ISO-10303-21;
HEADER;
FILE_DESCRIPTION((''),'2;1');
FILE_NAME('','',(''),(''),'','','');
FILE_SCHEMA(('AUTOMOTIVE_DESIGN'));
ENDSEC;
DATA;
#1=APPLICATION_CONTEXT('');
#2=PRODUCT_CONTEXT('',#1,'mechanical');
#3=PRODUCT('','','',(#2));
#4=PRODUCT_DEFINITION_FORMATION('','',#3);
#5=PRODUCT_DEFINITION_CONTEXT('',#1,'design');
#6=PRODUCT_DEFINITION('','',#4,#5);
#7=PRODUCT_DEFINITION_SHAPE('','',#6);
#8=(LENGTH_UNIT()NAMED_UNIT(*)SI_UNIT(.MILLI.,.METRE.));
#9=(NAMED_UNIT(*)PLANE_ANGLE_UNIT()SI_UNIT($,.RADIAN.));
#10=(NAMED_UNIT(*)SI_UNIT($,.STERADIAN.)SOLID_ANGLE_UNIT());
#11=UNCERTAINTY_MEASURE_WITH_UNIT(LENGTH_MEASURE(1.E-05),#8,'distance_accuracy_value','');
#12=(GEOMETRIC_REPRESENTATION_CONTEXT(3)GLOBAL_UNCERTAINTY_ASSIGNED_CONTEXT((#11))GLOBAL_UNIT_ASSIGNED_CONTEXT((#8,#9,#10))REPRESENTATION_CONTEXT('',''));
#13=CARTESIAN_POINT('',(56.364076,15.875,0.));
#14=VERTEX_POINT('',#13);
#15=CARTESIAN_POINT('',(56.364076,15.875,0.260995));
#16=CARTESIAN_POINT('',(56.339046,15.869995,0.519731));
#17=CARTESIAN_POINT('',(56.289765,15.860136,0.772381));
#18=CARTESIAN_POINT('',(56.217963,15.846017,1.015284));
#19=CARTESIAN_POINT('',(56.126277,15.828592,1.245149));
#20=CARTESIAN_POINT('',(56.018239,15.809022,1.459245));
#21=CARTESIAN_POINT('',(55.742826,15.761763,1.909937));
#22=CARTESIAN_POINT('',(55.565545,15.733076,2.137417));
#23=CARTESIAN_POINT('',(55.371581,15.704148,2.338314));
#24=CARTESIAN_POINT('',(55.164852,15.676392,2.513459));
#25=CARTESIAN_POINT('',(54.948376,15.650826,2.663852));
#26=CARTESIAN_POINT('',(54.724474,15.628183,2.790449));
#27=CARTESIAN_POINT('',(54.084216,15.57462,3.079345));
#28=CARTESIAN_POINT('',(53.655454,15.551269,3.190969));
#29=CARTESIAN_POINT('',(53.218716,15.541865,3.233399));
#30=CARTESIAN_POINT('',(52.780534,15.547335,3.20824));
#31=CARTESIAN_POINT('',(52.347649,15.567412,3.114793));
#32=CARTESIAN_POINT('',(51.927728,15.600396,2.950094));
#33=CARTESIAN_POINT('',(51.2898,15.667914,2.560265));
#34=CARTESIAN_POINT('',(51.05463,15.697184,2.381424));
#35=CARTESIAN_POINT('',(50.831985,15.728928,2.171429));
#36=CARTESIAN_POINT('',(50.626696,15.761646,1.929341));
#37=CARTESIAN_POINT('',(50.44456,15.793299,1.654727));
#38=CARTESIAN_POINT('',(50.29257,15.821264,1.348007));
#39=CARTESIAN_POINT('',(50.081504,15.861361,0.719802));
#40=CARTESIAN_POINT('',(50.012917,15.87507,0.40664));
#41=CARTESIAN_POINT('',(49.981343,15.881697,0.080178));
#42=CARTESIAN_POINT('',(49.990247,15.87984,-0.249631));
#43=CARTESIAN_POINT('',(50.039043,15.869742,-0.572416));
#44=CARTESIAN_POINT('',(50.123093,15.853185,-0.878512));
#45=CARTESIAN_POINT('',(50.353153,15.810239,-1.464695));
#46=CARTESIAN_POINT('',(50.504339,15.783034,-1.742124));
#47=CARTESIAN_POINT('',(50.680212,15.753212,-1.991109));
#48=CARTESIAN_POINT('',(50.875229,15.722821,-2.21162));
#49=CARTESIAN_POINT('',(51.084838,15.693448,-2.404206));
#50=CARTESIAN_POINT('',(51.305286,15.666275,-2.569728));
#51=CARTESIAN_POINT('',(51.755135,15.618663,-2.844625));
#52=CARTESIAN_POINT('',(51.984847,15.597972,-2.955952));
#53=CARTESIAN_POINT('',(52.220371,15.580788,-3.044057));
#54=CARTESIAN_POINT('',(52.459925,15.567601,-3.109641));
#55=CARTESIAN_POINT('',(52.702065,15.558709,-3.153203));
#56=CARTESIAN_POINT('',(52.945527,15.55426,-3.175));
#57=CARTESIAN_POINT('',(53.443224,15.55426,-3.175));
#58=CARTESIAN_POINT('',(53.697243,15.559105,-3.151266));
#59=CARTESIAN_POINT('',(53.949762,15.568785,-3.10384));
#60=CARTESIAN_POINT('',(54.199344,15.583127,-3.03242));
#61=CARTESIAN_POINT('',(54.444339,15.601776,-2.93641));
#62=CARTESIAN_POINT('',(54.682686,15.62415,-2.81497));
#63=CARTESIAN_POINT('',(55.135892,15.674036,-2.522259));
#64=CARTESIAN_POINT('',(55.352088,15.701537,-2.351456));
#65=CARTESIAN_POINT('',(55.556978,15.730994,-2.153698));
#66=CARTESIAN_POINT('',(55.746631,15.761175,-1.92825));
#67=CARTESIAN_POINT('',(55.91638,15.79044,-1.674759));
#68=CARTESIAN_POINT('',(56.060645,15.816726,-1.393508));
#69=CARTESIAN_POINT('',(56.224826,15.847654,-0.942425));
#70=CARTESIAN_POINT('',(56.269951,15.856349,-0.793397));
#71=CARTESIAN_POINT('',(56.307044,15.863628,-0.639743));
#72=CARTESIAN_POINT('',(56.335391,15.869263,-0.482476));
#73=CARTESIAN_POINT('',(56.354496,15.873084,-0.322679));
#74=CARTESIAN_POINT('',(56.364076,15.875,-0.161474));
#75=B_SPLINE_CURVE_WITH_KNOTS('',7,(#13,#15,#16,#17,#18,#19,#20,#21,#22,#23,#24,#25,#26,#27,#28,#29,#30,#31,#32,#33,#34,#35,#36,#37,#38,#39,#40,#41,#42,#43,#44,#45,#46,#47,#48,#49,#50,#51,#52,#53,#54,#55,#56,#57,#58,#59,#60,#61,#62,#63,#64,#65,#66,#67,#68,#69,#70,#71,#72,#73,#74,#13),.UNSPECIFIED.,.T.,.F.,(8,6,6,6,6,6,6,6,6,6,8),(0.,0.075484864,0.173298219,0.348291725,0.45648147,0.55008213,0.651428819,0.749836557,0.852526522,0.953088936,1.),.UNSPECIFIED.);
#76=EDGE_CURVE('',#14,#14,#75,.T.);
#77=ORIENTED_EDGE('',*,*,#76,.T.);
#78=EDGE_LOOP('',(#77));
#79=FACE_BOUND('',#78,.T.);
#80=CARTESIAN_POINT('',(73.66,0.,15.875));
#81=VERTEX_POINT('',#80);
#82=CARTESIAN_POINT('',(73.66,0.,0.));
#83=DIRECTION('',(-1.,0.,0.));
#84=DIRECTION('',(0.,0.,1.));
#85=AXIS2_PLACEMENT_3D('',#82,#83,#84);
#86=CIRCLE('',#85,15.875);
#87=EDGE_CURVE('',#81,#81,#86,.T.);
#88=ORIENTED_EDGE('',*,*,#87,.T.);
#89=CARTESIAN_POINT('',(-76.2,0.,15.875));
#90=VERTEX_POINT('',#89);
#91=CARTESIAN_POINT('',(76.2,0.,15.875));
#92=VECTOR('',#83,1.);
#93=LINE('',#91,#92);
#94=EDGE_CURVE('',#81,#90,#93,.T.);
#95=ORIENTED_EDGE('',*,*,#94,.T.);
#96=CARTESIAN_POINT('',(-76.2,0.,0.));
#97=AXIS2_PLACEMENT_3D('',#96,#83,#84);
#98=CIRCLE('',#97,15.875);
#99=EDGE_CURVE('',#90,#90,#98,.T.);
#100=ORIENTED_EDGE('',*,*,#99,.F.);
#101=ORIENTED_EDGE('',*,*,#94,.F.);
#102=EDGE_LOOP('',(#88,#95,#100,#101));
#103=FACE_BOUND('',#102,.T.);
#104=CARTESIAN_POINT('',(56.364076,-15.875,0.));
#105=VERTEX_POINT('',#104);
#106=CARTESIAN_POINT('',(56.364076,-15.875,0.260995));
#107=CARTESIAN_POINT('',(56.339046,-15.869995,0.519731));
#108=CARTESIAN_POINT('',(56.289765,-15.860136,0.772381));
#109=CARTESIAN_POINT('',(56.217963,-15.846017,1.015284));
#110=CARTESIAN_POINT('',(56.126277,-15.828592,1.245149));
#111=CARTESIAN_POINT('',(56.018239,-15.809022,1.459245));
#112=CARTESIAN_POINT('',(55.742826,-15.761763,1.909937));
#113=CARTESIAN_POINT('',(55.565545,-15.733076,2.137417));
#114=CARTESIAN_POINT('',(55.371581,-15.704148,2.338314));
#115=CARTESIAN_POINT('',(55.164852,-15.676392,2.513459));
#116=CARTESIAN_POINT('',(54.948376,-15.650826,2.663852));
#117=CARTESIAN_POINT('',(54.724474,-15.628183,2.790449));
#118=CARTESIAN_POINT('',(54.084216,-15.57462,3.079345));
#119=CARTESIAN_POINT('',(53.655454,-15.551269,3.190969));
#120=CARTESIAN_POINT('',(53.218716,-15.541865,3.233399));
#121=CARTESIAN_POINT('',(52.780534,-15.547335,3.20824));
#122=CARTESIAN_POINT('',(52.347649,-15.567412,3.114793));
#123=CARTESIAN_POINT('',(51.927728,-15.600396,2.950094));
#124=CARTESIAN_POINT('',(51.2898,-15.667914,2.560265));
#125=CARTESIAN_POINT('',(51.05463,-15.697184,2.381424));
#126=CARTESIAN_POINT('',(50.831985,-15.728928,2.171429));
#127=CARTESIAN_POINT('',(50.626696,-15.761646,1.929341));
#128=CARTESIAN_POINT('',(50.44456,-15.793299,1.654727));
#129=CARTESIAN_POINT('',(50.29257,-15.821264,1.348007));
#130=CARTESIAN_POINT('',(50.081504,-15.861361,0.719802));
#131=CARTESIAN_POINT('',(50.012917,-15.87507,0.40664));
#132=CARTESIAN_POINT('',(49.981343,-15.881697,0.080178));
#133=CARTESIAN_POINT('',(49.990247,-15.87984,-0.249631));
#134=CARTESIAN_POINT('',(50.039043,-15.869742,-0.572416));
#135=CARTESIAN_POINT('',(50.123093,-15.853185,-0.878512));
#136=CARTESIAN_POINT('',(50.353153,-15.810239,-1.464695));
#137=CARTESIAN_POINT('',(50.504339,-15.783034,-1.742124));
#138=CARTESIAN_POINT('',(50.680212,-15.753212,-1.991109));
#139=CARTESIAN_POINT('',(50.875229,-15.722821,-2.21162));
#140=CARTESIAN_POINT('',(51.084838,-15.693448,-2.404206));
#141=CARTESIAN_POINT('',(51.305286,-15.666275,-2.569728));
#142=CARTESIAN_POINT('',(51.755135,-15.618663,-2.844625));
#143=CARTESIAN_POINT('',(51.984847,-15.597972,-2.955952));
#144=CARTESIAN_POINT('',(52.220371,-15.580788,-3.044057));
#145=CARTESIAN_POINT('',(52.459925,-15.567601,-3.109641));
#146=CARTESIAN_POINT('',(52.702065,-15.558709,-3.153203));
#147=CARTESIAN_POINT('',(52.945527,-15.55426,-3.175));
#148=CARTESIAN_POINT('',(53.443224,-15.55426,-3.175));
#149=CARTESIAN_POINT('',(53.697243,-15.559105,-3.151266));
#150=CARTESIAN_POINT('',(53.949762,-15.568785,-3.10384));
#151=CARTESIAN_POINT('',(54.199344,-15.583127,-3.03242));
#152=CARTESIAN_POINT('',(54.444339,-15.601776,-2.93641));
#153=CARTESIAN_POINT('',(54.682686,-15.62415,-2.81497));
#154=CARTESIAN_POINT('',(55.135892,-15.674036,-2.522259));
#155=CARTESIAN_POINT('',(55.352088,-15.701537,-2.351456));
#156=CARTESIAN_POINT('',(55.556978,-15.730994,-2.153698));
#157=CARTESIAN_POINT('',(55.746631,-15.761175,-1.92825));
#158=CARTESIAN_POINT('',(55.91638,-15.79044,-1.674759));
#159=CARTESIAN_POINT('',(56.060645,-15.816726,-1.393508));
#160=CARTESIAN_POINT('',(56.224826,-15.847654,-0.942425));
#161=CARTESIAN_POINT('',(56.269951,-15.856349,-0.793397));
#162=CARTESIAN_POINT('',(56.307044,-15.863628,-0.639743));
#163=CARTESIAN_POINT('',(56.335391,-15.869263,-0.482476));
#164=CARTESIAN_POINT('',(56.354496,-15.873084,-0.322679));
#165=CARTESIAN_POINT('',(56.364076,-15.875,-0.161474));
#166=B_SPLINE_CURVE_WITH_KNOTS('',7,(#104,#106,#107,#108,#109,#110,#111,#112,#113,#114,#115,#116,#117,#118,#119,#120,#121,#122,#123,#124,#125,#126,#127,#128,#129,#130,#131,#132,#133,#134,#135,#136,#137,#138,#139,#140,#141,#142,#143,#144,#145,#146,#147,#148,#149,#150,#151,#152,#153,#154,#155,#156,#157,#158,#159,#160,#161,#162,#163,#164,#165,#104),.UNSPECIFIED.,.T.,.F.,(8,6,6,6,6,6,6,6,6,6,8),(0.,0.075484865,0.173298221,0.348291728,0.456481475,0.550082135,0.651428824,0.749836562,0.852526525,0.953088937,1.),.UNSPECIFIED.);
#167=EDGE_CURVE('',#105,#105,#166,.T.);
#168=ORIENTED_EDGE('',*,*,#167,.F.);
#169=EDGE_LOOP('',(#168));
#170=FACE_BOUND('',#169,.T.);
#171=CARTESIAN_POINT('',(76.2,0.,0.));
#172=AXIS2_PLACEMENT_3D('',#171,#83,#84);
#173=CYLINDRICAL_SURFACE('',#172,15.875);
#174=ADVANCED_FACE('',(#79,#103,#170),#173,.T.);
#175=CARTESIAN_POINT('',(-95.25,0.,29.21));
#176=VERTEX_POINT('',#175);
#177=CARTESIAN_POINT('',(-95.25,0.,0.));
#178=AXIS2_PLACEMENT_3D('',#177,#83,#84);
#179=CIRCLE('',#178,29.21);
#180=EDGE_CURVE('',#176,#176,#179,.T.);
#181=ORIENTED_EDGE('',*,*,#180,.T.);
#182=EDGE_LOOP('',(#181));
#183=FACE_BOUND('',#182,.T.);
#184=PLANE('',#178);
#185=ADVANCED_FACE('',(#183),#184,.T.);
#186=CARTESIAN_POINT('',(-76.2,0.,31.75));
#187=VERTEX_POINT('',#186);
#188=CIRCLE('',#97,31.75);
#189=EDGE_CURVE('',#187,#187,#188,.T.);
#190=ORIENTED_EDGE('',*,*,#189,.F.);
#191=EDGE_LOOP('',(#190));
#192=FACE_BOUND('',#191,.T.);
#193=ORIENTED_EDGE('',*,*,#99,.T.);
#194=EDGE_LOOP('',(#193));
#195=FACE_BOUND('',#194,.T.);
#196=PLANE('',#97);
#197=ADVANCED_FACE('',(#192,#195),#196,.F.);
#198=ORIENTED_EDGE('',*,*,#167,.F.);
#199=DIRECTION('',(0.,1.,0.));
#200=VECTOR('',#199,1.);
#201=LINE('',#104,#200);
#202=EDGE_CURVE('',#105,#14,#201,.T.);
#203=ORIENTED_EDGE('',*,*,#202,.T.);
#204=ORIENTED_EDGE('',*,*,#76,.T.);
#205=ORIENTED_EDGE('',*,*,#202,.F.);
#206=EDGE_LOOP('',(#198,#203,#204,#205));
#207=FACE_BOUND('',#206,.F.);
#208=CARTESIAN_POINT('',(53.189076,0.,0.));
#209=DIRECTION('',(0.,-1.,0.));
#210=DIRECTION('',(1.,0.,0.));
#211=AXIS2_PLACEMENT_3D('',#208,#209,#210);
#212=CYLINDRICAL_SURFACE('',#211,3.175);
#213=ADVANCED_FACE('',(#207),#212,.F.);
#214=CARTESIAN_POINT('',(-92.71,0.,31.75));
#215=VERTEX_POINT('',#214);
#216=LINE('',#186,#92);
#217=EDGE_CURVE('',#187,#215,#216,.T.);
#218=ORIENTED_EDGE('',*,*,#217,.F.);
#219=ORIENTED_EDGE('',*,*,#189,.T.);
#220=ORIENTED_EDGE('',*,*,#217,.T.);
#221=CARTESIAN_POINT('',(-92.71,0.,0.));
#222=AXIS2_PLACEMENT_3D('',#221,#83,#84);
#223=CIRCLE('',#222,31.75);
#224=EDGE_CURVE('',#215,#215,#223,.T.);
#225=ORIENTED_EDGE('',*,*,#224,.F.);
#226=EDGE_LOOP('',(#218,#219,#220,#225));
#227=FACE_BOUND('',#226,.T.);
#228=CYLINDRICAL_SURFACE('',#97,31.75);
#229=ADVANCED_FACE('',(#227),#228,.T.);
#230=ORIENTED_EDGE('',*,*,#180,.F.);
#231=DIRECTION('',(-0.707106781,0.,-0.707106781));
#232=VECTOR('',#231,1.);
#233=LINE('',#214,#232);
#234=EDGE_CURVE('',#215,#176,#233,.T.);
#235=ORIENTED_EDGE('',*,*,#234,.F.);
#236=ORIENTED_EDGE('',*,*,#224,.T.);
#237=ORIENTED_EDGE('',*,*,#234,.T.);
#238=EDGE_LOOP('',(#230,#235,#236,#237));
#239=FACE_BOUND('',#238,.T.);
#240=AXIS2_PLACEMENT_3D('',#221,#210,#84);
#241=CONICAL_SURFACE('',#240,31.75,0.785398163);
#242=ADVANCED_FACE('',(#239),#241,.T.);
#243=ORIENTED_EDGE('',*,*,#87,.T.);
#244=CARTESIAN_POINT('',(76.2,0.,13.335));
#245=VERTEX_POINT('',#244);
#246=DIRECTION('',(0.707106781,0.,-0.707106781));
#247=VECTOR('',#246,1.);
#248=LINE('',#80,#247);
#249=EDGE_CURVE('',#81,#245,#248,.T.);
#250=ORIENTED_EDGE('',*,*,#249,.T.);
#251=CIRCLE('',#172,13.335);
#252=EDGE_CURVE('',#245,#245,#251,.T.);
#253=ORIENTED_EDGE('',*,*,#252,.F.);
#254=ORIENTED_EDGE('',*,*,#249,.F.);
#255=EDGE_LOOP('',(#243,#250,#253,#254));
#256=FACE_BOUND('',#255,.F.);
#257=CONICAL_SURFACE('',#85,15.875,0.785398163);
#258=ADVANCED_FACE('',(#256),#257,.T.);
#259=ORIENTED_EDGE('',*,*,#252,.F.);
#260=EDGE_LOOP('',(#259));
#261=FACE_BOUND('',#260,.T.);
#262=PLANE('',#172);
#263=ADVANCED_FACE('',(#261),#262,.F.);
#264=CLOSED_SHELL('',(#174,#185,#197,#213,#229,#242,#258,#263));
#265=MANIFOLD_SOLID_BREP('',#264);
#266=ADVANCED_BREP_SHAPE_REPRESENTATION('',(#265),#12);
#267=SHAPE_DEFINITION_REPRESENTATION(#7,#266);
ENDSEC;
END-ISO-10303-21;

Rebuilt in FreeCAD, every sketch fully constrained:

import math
import FreeCAD as App
import Part
import Sketcher
from FreeCAD import Vector
Q = App.Units.Quantity


def edges_at(feature, points):
    """Names of the edges that pass closest to the given points."""
    edges = feature.Shape.Edges
    near = lambda p: min(range(len(edges)), key=lambda i: edges[i].distToShape(Part.Vertex(*p))[0])
    return sorted({f"Edge{near(p) + 1}" for p in points})

doc = App.newDocument("Part")
body = doc.addObject("PartDesign::Body", "Body")

sketch1 = body.newObject("Sketcher::SketchObject", "Sketch")
sketch1.AttachmentSupport = (doc.getObject("XZ_Plane"), [""])
sketch1.MapMode = "FlatFace"
sketch1.addGeometry([
    Part.ArcOfCircle(Part.Circle(Vector(53.2, 0, 0), Vector(0, 0, 1), 3.2), math.radians(0), math.radians(180)),
    Part.LineSegment(Vector(56.4, 0, 0), Vector(76.2, 0, 0)),
    Part.LineSegment(Vector(76.2, 0, 0), Vector(76.2, 15.9, 0)),
    Part.LineSegment(Vector(76.2, 15.9, 0), Vector(-76.2, 15.9, 0)),
    Part.LineSegment(Vector(-76.2, 15.9, 0), Vector(-76.2, 31.8, 0)),
    Part.LineSegment(Vector(-76.2, 31.8, 0), Vector(-95.2, 31.8, 0)),
    Part.LineSegment(Vector(-95.2, 31.8, 0), Vector(-95.2, 0, 0)),
    Part.LineSegment(Vector(-95.2, 0, 0), Vector(50, 0, 0)),
], False)
sketch1.addConstraint([
    Sketcher.Constraint("Coincident", 0, 1, 1, 1),
    Sketcher.Constraint("Coincident", 1, 2, 2, 1),
    Sketcher.Constraint("Coincident", 2, 2, 3, 1),
    Sketcher.Constraint("Coincident", 3, 2, 4, 1),
    Sketcher.Constraint("Coincident", 4, 2, 5, 1),
    Sketcher.Constraint("Coincident", 5, 2, 6, 1),
    Sketcher.Constraint("Coincident", 6, 2, 7, 1),
    Sketcher.Constraint("Coincident", 7, 2, 0, 2),
    Sketcher.Constraint("Horizontal", 1),
    Sketcher.Constraint("Vertical", 2),
    Sketcher.Constraint("Horizontal", 3),
    Sketcher.Constraint("Vertical", 4),
    Sketcher.Constraint("Horizontal", 5),
    Sketcher.Constraint("Vertical", 6),
    Sketcher.Constraint("Horizontal", 7),
    Sketcher.Constraint("PointOnObject", 0, 3, -1),
    Sketcher.Constraint("PointOnObject", 0, 1, -1),
    Sketcher.Constraint("PointOnObject", 6, 2, -1),
    Sketcher.Constraint("Equal", 2, 4),
    Sketcher.Constraint("DistanceX", 3, 2, 3, 1, Q("6 in")),
    Sketcher.Constraint("DistanceX", -1, 1, 1, 2, Q("3 in")),
    Sketcher.Constraint("Radius", 0, Q("0.125 in")),
    Sketcher.Constraint("DistanceX", 5, 2, 5, 1, Q("0.75 in")),
    Sketcher.Constraint("DistanceY", 6, 2, 6, 1, Q("1.25 in")),
    Sketcher.Constraint("DistanceX", 1, 1, 1, 2, Q("19.835924 mm")),
])
revolution = body.newObject("PartDesign::Revolution", "Revolution")
revolution.Profile = sketch1
revolution.ReferenceAxis = (sketch1, ["H_Axis"])
revolution.Angle = 360

sketch2 = body.newObject("Sketcher::SketchObject", "Sketch001")
sketch2.AttachmentSupport = (doc.getObject("XZ_Plane"), [""])
sketch2.MapMode = "FlatFace"
sketch2.addGeometry(Part.Circle(Vector(53.2, 0, 0), Vector(0, 0, 1), 3.2), False)
sketch2.addConstraint([
    Sketcher.Constraint("PointOnObject", 0, 3, -1),
    Sketcher.Constraint("Diameter", 0, Q("0.25 in")),
    Sketcher.Constraint("DistanceX", -1, 1, 0, 3, Q("53.189076 mm")),
])
pocket1 = body.newObject("PartDesign::Pocket", "Pocket")
pocket1.Profile = sketch2
pocket1.Length = Q("2 in")
pocket1.Midplane = True
doc.recompute()

chamfer = body.newObject("PartDesign::Chamfer", "Chamfer")
chamfer.Base = (pocket1, edges_at(pocket1, [(76.2, 0, -15.875), (-95.25, 0, -31.75)]))
chamfer.Size = Q("0.1 in")

doc.recompute()
